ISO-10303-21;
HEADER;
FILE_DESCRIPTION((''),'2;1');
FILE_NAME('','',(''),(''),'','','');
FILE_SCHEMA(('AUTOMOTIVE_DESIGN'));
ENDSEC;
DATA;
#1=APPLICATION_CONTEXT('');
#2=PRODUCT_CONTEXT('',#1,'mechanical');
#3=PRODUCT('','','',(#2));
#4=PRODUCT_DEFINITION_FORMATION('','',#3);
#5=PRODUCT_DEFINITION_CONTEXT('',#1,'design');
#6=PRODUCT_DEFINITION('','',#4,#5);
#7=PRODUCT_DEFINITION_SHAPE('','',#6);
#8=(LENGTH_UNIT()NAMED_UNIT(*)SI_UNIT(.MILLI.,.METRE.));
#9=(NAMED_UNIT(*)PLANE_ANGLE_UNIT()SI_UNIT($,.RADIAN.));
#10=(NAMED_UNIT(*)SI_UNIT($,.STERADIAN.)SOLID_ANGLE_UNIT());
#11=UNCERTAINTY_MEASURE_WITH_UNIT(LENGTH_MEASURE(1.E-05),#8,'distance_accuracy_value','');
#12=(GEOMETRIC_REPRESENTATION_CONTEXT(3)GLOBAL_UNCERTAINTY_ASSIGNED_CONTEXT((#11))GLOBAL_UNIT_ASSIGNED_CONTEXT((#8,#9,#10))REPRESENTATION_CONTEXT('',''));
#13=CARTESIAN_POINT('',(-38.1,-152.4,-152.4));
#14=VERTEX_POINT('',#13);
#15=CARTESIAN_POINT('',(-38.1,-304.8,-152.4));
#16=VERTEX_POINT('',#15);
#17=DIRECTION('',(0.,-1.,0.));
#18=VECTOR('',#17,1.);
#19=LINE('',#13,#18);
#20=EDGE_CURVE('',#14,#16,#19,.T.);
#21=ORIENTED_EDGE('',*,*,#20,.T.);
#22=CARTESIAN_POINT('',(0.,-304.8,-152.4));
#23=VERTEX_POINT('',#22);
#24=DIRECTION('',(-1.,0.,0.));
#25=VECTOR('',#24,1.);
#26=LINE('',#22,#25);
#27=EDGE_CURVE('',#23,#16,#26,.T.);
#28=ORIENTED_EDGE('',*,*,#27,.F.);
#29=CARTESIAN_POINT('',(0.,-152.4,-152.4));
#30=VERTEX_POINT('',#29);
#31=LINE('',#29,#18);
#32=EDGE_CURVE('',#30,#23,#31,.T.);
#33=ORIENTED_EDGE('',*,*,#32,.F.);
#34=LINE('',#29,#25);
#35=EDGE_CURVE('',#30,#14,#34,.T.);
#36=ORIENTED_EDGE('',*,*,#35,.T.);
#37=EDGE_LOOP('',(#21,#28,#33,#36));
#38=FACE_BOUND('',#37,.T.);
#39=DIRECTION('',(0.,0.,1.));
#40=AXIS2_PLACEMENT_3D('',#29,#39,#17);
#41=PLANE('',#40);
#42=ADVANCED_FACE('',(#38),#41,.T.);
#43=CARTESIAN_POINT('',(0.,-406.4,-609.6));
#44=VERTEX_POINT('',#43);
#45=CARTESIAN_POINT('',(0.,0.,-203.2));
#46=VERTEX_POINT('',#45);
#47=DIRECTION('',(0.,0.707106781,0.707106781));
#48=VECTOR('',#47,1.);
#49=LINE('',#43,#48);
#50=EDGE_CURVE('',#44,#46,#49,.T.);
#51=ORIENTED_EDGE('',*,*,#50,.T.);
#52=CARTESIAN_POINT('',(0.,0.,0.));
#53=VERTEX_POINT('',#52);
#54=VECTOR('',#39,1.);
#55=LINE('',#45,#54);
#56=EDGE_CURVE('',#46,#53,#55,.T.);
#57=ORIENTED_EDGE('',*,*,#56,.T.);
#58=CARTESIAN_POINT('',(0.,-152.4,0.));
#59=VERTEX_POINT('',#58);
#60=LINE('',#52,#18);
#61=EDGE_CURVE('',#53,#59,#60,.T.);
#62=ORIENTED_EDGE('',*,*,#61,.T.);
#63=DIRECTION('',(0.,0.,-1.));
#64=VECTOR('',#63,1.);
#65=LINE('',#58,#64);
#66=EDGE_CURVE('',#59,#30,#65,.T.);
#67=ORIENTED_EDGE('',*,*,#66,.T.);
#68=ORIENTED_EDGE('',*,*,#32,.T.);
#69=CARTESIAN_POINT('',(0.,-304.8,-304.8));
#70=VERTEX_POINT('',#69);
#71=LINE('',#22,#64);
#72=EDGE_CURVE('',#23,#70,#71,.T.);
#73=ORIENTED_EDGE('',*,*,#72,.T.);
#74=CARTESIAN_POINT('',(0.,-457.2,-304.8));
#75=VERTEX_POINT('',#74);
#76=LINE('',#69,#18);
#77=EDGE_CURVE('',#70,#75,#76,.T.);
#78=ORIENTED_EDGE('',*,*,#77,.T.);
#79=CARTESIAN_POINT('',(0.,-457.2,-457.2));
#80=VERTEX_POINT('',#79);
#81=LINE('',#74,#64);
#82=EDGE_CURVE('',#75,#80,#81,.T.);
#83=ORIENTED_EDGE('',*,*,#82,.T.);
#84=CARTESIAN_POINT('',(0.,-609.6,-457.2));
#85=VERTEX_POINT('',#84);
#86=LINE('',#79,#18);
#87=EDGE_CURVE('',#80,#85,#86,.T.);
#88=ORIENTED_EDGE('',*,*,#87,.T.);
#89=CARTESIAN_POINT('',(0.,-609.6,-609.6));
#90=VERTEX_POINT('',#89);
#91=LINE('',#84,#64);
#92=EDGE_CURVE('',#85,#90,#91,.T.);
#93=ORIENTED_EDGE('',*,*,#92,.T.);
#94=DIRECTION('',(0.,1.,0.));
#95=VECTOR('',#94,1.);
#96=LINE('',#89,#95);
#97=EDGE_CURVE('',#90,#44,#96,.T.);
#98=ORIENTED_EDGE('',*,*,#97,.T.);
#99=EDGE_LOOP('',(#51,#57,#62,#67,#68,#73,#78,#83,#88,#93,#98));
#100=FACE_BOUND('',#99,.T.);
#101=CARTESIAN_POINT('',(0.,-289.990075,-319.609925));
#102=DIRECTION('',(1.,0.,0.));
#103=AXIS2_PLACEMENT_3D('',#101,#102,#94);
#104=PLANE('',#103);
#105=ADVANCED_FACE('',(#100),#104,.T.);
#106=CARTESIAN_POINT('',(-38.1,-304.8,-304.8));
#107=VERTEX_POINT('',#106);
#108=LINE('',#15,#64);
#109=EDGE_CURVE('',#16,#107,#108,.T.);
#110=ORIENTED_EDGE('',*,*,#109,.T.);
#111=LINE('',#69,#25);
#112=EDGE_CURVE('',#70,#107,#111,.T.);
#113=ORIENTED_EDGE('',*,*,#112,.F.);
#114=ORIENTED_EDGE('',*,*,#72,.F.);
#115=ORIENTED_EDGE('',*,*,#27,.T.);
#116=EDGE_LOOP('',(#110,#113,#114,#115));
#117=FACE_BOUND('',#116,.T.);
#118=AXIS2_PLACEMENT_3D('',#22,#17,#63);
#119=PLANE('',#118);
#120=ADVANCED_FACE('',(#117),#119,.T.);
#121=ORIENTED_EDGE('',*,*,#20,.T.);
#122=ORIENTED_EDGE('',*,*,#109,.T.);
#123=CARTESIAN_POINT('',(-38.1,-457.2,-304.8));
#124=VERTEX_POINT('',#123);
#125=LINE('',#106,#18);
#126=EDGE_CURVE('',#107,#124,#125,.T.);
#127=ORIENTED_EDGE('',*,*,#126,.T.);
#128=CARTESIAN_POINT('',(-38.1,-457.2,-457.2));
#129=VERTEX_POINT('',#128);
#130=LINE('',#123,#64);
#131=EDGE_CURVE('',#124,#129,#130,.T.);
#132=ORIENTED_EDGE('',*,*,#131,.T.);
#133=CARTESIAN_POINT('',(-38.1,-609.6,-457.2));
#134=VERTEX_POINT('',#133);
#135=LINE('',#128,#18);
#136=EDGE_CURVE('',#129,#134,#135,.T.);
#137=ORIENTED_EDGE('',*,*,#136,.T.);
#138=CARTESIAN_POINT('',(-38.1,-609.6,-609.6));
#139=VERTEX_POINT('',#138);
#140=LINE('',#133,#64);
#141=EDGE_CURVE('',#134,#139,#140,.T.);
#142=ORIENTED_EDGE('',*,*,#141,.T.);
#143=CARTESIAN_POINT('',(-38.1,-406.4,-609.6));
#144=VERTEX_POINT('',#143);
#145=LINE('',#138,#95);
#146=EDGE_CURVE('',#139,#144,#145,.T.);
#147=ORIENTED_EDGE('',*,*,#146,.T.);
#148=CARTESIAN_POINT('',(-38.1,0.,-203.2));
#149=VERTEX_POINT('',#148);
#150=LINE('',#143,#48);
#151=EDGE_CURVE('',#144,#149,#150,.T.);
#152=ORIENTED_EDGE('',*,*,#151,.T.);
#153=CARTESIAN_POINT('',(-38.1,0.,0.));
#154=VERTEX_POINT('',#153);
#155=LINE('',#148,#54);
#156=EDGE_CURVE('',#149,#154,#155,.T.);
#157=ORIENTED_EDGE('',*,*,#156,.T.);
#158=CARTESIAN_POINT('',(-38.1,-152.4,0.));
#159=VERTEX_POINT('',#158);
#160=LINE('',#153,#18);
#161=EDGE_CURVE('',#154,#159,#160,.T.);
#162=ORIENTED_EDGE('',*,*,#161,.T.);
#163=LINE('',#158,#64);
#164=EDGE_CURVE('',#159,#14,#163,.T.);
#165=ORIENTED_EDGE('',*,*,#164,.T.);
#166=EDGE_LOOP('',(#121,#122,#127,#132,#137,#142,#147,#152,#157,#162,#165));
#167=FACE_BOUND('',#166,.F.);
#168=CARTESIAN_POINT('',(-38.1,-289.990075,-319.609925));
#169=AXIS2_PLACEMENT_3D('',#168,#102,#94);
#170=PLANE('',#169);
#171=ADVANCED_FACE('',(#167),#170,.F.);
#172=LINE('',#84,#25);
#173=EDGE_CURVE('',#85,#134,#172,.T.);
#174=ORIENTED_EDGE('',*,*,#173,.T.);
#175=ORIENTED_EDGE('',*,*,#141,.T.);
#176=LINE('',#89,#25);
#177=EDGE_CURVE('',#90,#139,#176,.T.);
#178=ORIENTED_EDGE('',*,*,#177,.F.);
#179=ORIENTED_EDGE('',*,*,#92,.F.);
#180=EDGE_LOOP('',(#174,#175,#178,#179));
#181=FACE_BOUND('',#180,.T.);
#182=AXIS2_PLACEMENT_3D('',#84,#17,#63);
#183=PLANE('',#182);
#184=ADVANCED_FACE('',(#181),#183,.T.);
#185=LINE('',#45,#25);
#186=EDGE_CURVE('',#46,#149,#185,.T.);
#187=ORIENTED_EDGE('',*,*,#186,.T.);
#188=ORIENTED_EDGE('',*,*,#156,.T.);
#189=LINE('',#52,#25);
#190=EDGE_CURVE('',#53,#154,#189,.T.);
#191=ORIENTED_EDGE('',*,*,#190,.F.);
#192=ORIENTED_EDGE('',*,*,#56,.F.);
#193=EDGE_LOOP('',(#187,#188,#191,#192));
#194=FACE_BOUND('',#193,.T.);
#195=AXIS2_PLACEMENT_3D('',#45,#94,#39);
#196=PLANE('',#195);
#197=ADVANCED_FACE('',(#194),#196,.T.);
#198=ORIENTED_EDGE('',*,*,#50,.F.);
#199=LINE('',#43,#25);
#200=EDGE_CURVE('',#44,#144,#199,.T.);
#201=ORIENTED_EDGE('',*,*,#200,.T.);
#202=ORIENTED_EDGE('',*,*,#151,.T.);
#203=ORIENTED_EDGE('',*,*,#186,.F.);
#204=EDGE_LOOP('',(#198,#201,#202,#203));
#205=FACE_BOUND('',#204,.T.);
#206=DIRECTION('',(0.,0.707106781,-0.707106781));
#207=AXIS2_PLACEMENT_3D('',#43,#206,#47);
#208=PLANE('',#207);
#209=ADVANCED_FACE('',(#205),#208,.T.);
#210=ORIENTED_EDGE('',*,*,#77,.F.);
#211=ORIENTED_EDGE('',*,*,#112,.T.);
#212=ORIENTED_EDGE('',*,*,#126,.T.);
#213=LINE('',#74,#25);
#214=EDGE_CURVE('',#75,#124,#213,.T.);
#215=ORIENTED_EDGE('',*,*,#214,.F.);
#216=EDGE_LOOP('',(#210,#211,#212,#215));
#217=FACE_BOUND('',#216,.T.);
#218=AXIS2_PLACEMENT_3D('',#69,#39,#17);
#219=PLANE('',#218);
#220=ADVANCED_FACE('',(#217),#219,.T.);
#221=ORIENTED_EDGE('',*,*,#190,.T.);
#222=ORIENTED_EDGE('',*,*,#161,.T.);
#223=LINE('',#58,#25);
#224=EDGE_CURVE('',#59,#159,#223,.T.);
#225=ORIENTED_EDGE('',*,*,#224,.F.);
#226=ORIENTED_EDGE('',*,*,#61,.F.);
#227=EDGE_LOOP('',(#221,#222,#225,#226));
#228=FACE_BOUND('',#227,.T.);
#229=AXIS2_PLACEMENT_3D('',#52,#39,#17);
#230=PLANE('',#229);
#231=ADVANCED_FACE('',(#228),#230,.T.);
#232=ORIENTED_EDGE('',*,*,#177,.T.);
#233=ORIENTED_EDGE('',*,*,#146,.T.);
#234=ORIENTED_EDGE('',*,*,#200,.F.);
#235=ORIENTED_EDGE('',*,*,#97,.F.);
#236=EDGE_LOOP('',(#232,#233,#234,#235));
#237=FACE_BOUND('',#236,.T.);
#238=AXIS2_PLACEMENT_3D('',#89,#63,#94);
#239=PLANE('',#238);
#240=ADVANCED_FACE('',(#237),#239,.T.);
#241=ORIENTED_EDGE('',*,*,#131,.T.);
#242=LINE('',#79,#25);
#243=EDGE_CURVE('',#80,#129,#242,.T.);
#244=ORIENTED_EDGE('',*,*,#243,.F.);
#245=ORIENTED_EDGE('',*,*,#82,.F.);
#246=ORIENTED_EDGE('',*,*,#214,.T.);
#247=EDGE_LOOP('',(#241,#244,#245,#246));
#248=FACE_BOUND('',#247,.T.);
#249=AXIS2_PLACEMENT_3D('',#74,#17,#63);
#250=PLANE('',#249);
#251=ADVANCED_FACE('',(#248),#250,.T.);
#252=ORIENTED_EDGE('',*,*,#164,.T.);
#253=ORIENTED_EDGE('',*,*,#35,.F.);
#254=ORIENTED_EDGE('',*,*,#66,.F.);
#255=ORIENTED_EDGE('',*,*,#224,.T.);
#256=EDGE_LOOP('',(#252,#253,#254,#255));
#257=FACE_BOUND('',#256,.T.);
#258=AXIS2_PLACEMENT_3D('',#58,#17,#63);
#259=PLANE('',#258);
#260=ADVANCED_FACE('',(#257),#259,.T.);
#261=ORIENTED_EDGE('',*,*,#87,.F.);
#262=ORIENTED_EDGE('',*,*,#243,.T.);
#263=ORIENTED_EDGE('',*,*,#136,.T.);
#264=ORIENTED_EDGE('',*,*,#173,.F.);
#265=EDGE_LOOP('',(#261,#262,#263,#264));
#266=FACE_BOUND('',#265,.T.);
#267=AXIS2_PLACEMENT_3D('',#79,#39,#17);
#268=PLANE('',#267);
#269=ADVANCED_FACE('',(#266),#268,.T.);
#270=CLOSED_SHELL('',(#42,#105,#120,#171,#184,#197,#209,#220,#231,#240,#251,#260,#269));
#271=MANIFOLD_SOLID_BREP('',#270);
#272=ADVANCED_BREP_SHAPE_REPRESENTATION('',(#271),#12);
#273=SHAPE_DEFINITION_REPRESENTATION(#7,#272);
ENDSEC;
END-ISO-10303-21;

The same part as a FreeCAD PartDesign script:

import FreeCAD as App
import Part
import Sketcher
from FreeCAD import Vector
Q = App.Units.Quantity

doc = App.newDocument("Part")
params = doc.addObject("Spreadsheet::Sheet", "Params")
for row, (alias, value) in enumerate([
    ("sketch1_width", "6 in"),
    ("sketch1_width2", "8 in"),
    ("pad1_length", "1.5 in"),
], start=1):
    params.set(f"A{row}", alias)
    params.set(f"B{row}", "=" + value)
    params.setAlias(f"B{row}", alias)

body = doc.addObject("PartDesign::Body", "Body")

# Sketch on YZ plane
sketch1 = doc.addObject("Sketcher::SketchObject", "Sketch")
body.addObject(sketch1)
sketch1.AttachmentSupport = (doc.YZ_Plane, [""])
sketch1.MapMode = "FlatFace"
sketch1.addGeometry([
    Part.LineSegment(Vector(-457, -305, 0), Vector(-457, -457, 0)),  # 0
    Part.LineSegment(Vector(-457, -457, 0), Vector(-610, -457, 0)),  # 1
    Part.LineSegment(Vector(-610, -457, 0), Vector(-610, -610, 0)),  # 2
    Part.LineSegment(Vector(-610, -610, 0), Vector(-406, -610, 0)),  # 3
    Part.LineSegment(Vector(-406, -610, 0), Vector(0, -203, 0)),  # 4
    Part.LineSegment(Vector(0, -203, 0), Vector(0, 0, 0)),  # 5
    Part.LineSegment(Vector(0, 0, 0), Vector(-152, 0, 0)),  # 6
    Part.LineSegment(Vector(-152, 0, 0), Vector(-152, -152, 0)),  # 7
    Part.LineSegment(Vector(-152, -152, 0), Vector(-305, -152, 0)),  # 8
    Part.LineSegment(Vector(-305, -152, 0), Vector(-305, -305, 0)),  # 9
    Part.LineSegment(Vector(-305, -305, 0), Vector(-457, -305, 0)),  # 10
], False)
sketch1.addConstraint([
    Sketcher.Constraint("Coincident", 0, 2, 1, 1),
    Sketcher.Constraint("Coincident", 1, 2, 2, 1),
    Sketcher.Constraint("Coincident", 2, 2, 3, 1),
    Sketcher.Constraint("Coincident", 3, 2, 4, 1),
    Sketcher.Constraint("Coincident", 4, 2, 5, 1),
    Sketcher.Constraint("Coincident", 5, 2, 6, 1),
    Sketcher.Constraint("Coincident", 6, 2, 7, 1),
    Sketcher.Constraint("Coincident", 7, 2, 8, 1),
    Sketcher.Constraint("Coincident", 8, 2, 9, 1),
    Sketcher.Constraint("Coincident", 9, 2, 10, 1),
    Sketcher.Constraint("Coincident", 10, 2, 0, 1),
    Sketcher.Constraint("Vertical", 0),
    Sketcher.Constraint("Horizontal", 1),
    Sketcher.Constraint("Vertical", 2),
    Sketcher.Constraint("Horizontal", 3),
    Sketcher.Constraint("Vertical", 5),
    Sketcher.Constraint("Horizontal", 6),
    Sketcher.Constraint("Vertical", 7),
    Sketcher.Constraint("Horizontal", 8),
    Sketcher.Constraint("Vertical", 9),
    Sketcher.Constraint("Horizontal", 10),
    Sketcher.Constraint("Coincident", 5, 2, -1, 1),
    Sketcher.Constraint("Equal", 1, 6),
    Sketcher.Constraint("Equal", 6, 8),
    Sketcher.Constraint("Equal", 8, 10),
    Sketcher.Constraint("Equal", 10, 0),
    Sketcher.Constraint("Equal", 0, 2),
    Sketcher.Constraint("Equal", 3, 5),
    Sketcher.Constraint("Equal", 2, 7),
    Sketcher.Constraint("Equal", 7, 9),
    Sketcher.Constraint("DistanceX", 1, 2, 1, 1, Q("6 in")),
    Sketcher.Constraint("DistanceX", 3, 1, 3, 2, Q("8 in")),
])
sketch1.setExpression("Constraints[30]", "Params.sketch1_width")
sketch1.setExpression("Constraints[31]", "Params.sketch1_width2")
pad1 = doc.addObject("PartDesign::Pad", "Pad")
body.addObject(pad1)
pad1.Profile = sketch1
pad1.setExpression("Length", "Params.pad1_length")
pad1.Reversed = True

doc.recompute()
